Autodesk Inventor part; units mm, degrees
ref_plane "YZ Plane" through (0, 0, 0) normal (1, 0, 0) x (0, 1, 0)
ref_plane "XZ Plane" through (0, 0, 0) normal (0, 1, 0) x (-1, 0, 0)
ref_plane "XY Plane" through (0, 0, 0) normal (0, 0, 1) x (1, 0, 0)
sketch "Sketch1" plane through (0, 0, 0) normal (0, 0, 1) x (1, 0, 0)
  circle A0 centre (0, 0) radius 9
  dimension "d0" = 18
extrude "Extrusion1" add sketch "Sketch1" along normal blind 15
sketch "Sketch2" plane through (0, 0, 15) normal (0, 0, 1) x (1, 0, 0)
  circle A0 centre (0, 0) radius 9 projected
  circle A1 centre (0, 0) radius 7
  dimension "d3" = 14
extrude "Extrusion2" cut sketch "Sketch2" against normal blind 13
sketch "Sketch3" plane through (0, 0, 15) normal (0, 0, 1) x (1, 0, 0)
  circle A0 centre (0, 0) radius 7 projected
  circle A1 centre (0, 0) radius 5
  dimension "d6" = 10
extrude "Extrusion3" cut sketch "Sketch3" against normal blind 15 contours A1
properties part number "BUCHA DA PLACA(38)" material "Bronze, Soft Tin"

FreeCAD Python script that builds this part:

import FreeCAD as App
import Part
import Sketcher
Q = App.Units.Quantity

doc = App.newDocument("Part")
body = doc.addObject("PartDesign::Body", "Body")

# Sketch on XY plane
sketch1 = body.newObject("Sketcher::SketchObject", "Sketch")
sketch1.AttachmentSupport = (doc.getObject("XY_Plane"), [""])
sketch1.MapMode = "FlatFace"
sketch1.addGeometry(Part.Circle(App.Vector(0, 0, 0), App.Vector(0, 0, 1), 9), False)
sketch1.addConstraint([
    Sketcher.Constraint("Coincident", 0, 3, -1, 1),
    Sketcher.Constraint("Diameter", 0, Q("18 mm")),
])
pad1 = body.newObject("PartDesign::Pad", "Pad")
pad1.Profile = sketch1
pad1.Length = 15

# Sketch on XY plane
sketch2 = body.newObject("Sketcher::SketchObject", "Sketch001")
sketch2.AttachmentSupport = (doc.getObject("XY_Plane"), [""])
sketch2.MapMode = "FlatFace"
sketch2.AttachmentOffset = App.Placement(App.Vector(0, 0, 15), App.Rotation())
sketch2.addGeometry([
    Part.Circle(App.Vector(0, 0, 0), App.Vector(0, 0, 1), 9),
    Part.Circle(App.Vector(0, 0, 0), App.Vector(0, 0, 1), 7),
], False)
sketch2.addConstraint([
    Sketcher.Constraint("Coincident", 0, 3, -1, 1),
    Sketcher.Constraint("Coincident", 1, 3, -1, 1),
    Sketcher.Constraint("Diameter", 1, Q("14 mm")),
    Sketcher.Constraint("Diameter", 0, Q("18 mm")),
])
pocket1 = body.newObject("PartDesign::Pocket", "Pocket")
pocket1.Profile = sketch2
pocket1.Length = 13

# Sketch on XY plane
sketch3 = body.newObject("Sketcher::SketchObject", "Sketch002")
sketch3.AttachmentSupport = (doc.getObject("XY_Plane"), [""])
sketch3.MapMode = "FlatFace"
sketch3.AttachmentOffset = App.Placement(App.Vector(0, 0, 15), App.Rotation())
sketch3.addGeometry(Part.Circle(App.Vector(0, 0, 0), App.Vector(0, 0, 1), 5), False)
sketch3.addConstraint([
    Sketcher.Constraint("Coincident", 0, 3, -1, 1),
    Sketcher.Constraint("Diameter", 0, Q("10 mm")),
])
pocket2 = body.newObject("PartDesign::Pocket", "Pocket001")
pocket2.Profile = sketch3
pocket2.Length = 15

doc.recompute()
